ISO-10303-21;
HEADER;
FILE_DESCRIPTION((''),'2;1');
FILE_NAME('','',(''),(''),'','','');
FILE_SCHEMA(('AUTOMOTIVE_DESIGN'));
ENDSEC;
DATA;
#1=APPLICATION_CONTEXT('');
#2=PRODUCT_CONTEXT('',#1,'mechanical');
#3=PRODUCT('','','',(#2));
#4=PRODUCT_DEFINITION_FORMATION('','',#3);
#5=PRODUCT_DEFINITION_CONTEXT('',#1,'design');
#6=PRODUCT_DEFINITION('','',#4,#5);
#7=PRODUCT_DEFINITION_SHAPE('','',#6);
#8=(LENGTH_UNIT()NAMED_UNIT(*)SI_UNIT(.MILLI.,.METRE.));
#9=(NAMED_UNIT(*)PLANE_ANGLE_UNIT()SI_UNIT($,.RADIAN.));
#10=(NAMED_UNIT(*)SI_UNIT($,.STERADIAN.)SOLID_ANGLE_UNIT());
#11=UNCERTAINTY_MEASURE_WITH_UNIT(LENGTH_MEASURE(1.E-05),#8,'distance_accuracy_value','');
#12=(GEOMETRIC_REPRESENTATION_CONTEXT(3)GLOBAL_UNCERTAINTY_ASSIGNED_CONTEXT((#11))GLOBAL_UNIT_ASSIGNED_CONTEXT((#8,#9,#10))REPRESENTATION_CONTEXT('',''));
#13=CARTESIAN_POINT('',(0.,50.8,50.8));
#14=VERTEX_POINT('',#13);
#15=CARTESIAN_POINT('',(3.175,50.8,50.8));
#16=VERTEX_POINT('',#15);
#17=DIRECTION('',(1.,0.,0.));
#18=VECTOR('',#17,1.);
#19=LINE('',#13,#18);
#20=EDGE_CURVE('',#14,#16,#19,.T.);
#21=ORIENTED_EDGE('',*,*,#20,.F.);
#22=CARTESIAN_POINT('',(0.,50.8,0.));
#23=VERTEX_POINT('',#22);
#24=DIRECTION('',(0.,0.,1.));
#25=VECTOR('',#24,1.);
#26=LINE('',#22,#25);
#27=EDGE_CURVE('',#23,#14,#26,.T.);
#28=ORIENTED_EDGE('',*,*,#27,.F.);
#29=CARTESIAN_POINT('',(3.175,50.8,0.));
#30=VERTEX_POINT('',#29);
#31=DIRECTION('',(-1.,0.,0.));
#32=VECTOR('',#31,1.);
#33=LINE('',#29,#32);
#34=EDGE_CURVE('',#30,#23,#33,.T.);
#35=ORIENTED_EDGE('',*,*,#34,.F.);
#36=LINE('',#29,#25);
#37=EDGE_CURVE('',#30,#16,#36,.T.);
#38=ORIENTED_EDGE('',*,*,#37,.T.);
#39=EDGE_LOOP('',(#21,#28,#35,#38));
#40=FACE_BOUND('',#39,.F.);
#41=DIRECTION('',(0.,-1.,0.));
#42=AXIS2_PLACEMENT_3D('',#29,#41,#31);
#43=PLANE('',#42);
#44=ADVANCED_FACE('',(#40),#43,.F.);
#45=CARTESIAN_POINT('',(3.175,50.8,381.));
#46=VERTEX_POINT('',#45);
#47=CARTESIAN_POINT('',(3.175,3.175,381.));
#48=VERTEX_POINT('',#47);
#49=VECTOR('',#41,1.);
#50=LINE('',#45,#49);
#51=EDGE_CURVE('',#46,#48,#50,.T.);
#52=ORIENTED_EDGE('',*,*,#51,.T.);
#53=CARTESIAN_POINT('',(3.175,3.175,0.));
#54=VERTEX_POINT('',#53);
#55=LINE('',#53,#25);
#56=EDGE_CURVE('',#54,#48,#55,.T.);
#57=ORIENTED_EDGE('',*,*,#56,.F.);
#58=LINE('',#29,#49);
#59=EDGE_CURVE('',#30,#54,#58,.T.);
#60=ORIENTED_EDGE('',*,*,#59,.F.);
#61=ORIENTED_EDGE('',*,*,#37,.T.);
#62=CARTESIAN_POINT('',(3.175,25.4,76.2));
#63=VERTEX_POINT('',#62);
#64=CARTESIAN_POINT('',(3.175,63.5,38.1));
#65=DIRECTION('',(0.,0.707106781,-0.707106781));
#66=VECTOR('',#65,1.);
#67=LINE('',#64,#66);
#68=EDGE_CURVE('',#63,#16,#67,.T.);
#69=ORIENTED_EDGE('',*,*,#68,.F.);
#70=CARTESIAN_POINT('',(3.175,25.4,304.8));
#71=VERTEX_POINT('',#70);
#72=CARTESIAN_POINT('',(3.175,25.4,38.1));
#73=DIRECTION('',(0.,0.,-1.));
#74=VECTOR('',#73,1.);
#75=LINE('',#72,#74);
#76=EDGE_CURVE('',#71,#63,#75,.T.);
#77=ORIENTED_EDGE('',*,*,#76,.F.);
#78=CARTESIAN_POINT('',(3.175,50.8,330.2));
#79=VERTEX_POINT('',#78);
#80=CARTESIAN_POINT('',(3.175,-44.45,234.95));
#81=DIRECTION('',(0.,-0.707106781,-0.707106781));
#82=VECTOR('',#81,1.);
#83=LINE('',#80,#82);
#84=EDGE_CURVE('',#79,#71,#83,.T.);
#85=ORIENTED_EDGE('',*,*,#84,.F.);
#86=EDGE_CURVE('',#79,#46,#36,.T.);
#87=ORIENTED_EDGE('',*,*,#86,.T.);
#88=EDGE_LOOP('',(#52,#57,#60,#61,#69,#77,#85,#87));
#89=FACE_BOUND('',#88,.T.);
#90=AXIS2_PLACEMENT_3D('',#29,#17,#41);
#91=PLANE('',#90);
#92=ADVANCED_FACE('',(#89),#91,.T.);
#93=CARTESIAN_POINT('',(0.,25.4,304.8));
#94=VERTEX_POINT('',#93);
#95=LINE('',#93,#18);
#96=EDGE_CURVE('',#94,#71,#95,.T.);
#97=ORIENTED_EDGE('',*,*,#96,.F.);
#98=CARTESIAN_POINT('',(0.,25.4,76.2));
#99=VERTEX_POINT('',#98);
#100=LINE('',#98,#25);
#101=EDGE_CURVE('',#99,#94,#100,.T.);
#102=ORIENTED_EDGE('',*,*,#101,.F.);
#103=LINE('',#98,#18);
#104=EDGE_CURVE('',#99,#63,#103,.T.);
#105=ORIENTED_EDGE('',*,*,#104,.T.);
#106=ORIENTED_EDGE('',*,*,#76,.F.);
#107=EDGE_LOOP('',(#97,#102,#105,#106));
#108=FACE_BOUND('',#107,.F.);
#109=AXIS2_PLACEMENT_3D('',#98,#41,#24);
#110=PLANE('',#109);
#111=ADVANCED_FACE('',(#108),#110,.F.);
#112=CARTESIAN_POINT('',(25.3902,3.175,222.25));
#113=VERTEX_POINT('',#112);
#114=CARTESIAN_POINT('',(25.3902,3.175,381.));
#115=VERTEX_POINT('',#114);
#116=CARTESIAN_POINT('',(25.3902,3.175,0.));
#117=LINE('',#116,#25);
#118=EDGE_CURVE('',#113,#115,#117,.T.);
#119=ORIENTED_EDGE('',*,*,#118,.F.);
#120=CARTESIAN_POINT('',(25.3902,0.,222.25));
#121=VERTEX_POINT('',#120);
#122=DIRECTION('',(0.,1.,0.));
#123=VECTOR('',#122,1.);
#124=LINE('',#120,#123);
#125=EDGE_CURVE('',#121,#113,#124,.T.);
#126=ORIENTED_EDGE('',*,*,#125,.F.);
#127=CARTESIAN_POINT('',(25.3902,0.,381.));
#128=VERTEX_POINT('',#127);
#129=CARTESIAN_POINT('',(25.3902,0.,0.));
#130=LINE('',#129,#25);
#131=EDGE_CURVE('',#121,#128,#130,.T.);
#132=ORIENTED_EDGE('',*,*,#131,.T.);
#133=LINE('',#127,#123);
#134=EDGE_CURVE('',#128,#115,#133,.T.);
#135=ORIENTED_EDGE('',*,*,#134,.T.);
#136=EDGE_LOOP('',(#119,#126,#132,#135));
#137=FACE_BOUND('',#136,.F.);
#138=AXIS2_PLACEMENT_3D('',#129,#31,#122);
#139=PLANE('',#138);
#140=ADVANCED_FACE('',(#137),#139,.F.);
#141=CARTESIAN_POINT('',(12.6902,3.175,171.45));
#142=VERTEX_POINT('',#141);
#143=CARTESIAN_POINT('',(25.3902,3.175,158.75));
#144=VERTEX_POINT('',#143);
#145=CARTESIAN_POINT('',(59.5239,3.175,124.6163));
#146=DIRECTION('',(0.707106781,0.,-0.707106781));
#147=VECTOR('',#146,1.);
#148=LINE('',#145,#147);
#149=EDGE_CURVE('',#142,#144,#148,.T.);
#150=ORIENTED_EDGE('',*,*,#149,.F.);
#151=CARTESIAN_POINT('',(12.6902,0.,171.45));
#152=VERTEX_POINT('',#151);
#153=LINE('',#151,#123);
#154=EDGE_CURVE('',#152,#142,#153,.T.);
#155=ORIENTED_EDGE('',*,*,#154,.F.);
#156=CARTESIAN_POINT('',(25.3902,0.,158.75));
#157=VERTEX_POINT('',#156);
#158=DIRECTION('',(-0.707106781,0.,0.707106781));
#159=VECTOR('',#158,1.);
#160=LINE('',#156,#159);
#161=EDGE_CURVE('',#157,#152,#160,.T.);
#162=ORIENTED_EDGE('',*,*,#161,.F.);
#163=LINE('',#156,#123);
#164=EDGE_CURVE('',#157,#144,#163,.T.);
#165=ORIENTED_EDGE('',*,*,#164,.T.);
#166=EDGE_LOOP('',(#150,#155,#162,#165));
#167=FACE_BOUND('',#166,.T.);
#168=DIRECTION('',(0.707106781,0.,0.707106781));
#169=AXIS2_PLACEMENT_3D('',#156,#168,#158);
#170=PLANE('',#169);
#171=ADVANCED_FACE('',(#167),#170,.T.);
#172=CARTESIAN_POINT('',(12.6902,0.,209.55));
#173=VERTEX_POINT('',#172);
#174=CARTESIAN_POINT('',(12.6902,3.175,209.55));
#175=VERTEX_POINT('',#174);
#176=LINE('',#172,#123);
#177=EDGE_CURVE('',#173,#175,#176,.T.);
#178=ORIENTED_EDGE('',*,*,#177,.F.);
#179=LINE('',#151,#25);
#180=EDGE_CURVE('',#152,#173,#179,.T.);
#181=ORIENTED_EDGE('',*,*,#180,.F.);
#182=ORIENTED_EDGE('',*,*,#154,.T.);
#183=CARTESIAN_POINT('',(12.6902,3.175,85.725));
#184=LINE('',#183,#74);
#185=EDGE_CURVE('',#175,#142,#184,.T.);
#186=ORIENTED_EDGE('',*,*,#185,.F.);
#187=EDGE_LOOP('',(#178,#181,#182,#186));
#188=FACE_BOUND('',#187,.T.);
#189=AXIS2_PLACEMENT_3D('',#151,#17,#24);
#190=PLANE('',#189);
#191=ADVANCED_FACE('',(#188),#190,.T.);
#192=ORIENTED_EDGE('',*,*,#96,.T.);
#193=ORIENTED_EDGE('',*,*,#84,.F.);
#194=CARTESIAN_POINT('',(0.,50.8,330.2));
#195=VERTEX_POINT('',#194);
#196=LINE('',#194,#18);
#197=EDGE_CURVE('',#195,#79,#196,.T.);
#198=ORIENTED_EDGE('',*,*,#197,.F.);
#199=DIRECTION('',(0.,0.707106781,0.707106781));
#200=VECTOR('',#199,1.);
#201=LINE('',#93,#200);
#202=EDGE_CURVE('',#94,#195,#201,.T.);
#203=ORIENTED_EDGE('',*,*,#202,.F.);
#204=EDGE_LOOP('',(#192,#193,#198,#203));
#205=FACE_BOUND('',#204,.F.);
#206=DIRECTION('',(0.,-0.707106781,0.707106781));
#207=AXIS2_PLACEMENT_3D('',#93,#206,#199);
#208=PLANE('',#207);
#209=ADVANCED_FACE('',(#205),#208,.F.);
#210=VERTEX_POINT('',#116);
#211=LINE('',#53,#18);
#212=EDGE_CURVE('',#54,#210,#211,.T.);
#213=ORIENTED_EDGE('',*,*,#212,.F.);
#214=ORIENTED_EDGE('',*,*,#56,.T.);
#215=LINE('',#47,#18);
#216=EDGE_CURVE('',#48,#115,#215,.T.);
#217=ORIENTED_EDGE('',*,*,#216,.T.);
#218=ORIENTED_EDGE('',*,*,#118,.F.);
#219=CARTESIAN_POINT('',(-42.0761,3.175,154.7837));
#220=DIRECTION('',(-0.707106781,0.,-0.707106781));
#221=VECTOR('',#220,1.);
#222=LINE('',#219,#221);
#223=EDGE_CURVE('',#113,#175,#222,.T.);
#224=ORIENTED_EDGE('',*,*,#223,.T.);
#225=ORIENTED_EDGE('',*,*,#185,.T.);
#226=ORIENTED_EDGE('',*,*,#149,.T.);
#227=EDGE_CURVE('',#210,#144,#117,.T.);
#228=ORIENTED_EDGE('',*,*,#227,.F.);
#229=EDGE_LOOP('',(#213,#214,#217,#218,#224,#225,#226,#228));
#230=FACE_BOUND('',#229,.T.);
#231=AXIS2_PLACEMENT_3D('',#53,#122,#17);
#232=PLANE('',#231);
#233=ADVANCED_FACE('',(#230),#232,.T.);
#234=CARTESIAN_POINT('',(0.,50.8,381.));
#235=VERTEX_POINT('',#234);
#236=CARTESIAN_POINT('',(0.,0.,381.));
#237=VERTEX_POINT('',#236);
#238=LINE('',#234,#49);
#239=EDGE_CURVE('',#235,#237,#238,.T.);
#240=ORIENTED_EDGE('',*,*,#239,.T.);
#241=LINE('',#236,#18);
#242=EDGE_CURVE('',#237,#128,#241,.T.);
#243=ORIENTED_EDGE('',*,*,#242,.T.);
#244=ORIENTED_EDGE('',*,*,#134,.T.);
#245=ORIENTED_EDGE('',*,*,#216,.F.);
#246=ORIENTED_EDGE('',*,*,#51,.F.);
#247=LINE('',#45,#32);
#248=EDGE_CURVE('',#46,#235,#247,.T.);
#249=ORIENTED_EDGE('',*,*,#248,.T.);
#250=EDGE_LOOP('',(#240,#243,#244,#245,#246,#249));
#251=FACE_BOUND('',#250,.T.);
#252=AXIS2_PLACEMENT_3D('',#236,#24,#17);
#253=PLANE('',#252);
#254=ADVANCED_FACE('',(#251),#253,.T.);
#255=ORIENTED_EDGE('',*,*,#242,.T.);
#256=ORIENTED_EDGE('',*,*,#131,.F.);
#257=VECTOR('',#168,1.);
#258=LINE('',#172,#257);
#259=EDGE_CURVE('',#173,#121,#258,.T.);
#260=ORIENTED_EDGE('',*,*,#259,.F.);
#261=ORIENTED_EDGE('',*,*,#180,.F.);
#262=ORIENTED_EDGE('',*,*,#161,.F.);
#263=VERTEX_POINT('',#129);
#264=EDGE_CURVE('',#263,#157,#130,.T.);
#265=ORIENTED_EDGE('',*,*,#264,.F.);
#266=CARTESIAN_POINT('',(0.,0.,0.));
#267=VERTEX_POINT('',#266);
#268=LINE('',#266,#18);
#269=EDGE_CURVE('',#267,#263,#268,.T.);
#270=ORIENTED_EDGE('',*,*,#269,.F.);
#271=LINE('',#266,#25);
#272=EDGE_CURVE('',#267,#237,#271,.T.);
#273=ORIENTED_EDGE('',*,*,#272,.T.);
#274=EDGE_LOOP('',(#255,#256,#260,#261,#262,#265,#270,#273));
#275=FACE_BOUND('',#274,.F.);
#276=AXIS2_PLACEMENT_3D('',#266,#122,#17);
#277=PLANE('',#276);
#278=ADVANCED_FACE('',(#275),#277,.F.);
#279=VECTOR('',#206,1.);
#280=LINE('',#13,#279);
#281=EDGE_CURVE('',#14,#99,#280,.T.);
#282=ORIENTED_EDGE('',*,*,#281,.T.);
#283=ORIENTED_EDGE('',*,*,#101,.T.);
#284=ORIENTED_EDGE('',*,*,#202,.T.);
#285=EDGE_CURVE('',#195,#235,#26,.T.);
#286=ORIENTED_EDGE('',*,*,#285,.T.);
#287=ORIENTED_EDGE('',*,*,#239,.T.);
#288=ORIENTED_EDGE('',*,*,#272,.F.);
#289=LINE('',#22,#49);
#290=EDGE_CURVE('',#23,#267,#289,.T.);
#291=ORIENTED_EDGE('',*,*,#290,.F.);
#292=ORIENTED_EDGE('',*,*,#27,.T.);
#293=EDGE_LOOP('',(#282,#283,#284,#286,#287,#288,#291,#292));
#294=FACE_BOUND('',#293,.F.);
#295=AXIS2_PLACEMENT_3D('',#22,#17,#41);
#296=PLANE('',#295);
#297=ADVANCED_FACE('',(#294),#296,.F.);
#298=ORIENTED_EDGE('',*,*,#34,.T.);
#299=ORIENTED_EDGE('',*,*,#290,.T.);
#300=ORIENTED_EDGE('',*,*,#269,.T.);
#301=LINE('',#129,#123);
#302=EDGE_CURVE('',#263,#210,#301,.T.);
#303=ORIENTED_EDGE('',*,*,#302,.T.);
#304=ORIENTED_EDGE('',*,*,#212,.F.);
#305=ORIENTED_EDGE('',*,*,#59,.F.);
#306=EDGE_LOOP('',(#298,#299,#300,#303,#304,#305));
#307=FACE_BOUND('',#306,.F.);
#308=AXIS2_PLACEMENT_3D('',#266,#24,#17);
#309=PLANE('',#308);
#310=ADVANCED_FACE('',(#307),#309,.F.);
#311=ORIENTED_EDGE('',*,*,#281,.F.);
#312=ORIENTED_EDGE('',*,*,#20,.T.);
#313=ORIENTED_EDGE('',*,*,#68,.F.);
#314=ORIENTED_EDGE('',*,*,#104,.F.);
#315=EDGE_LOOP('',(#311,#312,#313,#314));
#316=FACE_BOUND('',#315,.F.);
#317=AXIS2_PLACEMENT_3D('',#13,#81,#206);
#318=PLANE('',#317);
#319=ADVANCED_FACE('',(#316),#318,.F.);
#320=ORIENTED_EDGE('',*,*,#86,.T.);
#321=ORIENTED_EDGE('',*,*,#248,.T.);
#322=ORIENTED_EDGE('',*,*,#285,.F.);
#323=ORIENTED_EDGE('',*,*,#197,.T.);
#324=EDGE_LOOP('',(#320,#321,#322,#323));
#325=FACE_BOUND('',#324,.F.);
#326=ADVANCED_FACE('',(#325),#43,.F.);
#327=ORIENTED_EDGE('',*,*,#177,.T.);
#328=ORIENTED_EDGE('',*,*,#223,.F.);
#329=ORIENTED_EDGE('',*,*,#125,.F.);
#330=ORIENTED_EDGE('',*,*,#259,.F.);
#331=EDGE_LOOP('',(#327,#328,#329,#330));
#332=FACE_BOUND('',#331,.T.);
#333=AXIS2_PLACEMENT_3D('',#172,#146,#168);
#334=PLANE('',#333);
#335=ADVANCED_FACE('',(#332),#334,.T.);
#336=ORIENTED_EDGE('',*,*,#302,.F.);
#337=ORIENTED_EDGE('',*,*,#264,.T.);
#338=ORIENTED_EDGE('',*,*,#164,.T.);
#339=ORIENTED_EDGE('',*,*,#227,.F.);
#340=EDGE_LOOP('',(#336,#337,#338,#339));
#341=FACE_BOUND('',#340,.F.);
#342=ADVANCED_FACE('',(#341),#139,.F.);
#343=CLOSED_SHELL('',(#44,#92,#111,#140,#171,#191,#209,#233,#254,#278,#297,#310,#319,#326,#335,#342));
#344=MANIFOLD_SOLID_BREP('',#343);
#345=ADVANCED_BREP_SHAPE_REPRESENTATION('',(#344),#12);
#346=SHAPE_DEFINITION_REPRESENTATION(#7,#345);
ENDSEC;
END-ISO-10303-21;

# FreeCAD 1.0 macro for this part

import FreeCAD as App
import Part
import Sketcher
from FreeCAD import Vector
Q = App.Units.Quantity

doc = App.newDocument("Part")
body = doc.addObject("PartDesign::Body", "Body")

sketch1 = body.newObject("Sketcher::SketchObject", "Sketch")
sketch1.AttachmentSupport = (doc.getObject("XY_Plane"), [""])
sketch1.MapMode = "FlatFace"
sketch1.addGeometry([
    Part.LineSegment(Vector(0, 50.8, 0), Vector(0, 0, 0)),
    Part.LineSegment(Vector(0, 0, 0), Vector(25.4, 0, 0)),
    Part.LineSegment(Vector(25.4, 0, 0), Vector(25.4, 3.2, 0)),
    Part.LineSegment(Vector(25.4, 3.2, 0), Vector(3.2, 3.2, 0)),
    Part.LineSegment(Vector(3.2, 3.2, 0), Vector(3.2, 50.8, 0)),
    Part.LineSegment(Vector(3.2, 50.8, 0), Vector(0, 50.8, 0)),
], False)
sketch1.addConstraint([
    Sketcher.Constraint("Coincident", 0, 2, 1, 1),
    Sketcher.Constraint("Coincident", 1, 2, 2, 1),
    Sketcher.Constraint("Coincident", 2, 2, 3, 1),
    Sketcher.Constraint("Coincident", 3, 2, 4, 1),
    Sketcher.Constraint("Coincident", 4, 2, 5, 1),
    Sketcher.Constraint("Coincident", 5, 2, 0, 1),
    Sketcher.Constraint("Vertical", 0),
    Sketcher.Constraint("Horizontal", 1),
    Sketcher.Constraint("Vertical", 2),
    Sketcher.Constraint("Horizontal", 3),
    Sketcher.Constraint("Vertical", 4),
    Sketcher.Constraint("Horizontal", 5),
    Sketcher.Constraint("Coincident", 0, 2, -1, 1),
    Sketcher.Constraint("Equal", 5, 2),
    Sketcher.Constraint("DistanceY", 0, 2, 0, 1, Q("2 in")),
    Sketcher.Constraint("DistanceX", 5, 2, 5, 1, Q("0.125 in")),
    Sketcher.Constraint("DistanceX", 1, 1, 1, 2, Q("25.3902 mm")),
])
pad1 = body.newObject("PartDesign::Pad", "Pad")
pad1.Profile = sketch1
pad1.Length = Q("15 in")

sketch2 = body.newObject("Sketcher::SketchObject", "Sketch001")
sketch2.AttachmentSupport = (doc.getObject("XZ_Plane"), [""])
sketch2.MapMode = "FlatFace"
sketch2.addGeometry([
    Part.LineSegment(Vector(13, 171, 0), Vector(25, 159, 0)),
    Part.LineSegment(Vector(25, 159, 0), Vector(25, 222, 0)),
    Part.LineSegment(Vector(25, 222, 0), Vector(13, 210, 0)),
    Part.LineSegment(Vector(13, 210, 0), Vector(13, 171, 0)),
], False)
sketch2.addConstraint([
    Sketcher.Constraint("Coincident", 0, 2, 1, 1),
    Sketcher.Constraint("Coincident", 1, 2, 2, 1),
    Sketcher.Constraint("Coincident", 2, 2, 3, 1),
    Sketcher.Constraint("Coincident", 3, 2, 0, 1),
    Sketcher.Constraint("Vertical", 1),
    Sketcher.Constraint("Vertical", 3),
    Sketcher.Constraint("Perpendicular", 0, 2),
    Sketcher.Constraint("Equal", 0, 2),
    Sketcher.Constraint("DistanceY", 3, 2, 3, 1, Q("1.5 in")),
    Sketcher.Constraint("DistanceX", 2, 2, 1, 2, Q("0.5 in")),
    Sketcher.Constraint("DistanceY", -1, 1, 3, 2, Q("6.75 in")),
    Sketcher.Constraint("DistanceX", -1, 1, 0, 2, Q("25.3902 mm")),
])
pocket1 = body.newObject("PartDesign::Pocket", "Pocket")
pocket1.Profile = sketch2
pocket1.Type = "ThroughAll"

sketch3 = body.newObject("Sketcher::SketchObject", "Sketch002")
sketch3.AttachmentSupport = (doc.getObject("YZ_Plane"), [""])
sketch3.MapMode = "FlatFace"
sketch3.addGeometry([
    Part.LineSegment(Vector(25, 305, 0), Vector(51, 330, 0)),
    Part.LineSegment(Vector(51, 330, 0), Vector(51, 51, 0)),
    Part.LineSegment(Vector(51, 51, 0), Vector(25, 76, 0)),
    Part.LineSegment(Vector(25, 76, 0), Vector(25, 305, 0)),
], False)
sketch3.addConstraint([
    Sketcher.Constraint("Coincident", 0, 2, 1, 1),
    Sketcher.Constraint("Coincident", 1, 2, 2, 1),
    Sketcher.Constraint("Coincident", 2, 2, 3, 1),
    Sketcher.Constraint("Coincident", 3, 2, 0, 1),
    Sketcher.Constraint("Vertical", 1),
    Sketcher.Constraint("Vertical", 3),
    Sketcher.Constraint("Perpendicular", 0, 2),
    Sketcher.Constraint("Equal", 0, 2),
    Sketcher.Constraint("DistanceX", -1, 1, 0, 2, Q("2 in")),
    Sketcher.Constraint("DistanceY", -1, 1, 1, 2, Q("2 in")),
    Sketcher.Constraint("DistanceX", -1, 1, 2, 2, Q("1 in")),
    Sketcher.Constraint("DistanceY", 1, 2, 1, 1, Q("11 in")),
])
pocket2 = body.newObject("PartDesign::Pocket", "Pocket001")
pocket2.Profile = sketch3
pocket2.Type = "ThroughAll"
pocket2.Reversed = True

doc.recompute()
